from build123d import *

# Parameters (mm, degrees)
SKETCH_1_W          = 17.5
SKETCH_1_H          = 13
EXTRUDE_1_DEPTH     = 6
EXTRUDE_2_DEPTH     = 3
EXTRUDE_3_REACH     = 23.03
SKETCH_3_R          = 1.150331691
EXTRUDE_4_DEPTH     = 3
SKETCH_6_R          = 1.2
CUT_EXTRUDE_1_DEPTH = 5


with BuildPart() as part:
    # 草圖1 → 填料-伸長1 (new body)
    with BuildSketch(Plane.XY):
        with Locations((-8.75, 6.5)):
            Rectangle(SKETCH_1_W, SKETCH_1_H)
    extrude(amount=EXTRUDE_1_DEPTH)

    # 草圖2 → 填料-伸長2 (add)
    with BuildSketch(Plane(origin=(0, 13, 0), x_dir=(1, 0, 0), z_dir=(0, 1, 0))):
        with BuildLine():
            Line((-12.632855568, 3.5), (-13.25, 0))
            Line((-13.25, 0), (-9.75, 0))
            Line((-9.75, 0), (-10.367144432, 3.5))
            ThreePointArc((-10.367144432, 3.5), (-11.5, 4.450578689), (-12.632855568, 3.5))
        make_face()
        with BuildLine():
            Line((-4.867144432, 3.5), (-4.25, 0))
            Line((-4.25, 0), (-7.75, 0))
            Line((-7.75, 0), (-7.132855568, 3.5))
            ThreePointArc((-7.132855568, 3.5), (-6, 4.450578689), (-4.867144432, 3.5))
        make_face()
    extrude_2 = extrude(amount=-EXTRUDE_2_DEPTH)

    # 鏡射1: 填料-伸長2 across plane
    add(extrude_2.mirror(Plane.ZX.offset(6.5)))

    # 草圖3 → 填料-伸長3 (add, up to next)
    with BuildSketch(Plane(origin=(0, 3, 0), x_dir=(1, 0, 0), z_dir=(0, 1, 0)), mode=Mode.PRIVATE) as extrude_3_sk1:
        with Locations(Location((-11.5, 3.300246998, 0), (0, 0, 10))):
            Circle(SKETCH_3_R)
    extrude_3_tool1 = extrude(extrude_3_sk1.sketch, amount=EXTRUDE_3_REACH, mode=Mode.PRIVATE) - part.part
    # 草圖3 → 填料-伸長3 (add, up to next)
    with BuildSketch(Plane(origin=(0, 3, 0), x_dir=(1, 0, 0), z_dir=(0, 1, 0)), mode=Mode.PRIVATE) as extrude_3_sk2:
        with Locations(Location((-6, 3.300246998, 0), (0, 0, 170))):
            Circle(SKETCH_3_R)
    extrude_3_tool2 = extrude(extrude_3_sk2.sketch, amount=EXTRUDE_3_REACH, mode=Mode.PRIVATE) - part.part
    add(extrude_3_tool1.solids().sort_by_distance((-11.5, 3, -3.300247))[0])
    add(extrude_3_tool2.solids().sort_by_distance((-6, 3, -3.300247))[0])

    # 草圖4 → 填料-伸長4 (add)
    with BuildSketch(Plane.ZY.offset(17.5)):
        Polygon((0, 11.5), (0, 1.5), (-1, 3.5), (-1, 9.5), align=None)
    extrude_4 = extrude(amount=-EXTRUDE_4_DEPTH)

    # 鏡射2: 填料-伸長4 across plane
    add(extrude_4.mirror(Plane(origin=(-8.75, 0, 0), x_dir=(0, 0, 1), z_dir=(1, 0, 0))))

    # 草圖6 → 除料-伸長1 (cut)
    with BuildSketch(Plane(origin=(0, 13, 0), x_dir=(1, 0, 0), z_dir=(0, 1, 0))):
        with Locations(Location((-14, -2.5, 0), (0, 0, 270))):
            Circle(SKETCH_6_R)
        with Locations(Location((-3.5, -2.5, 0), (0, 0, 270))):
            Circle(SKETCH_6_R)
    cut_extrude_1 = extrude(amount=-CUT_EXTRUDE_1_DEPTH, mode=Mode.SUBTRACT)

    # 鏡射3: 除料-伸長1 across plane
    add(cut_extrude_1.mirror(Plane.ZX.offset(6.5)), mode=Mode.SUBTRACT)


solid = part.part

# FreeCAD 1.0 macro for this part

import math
import FreeCAD as App
import Part
import Sketcher

V = App.Vector
Q = App.Units.Quantity


def add_polygon(sketch, points):
    """Adds a closed chain of lines whose ends are joined by coincident constraints."""
    first, n = sketch.GeometryCount, len(points)
    for a, b in zip(points, points[1:] + points[:1]):
        sketch.addGeometry(Part.LineSegment(App.Vector(*a, 0), App.Vector(*b, 0)), False)
    for i in range(n):
        sketch.addConstraint(Sketcher.Constraint("Coincident", first + i, 2, first + (i + 1) % n, 1))

doc = App.newDocument("Part")
body = doc.addObject("PartDesign::Body", "Body")

sketch1 = body.newObject("Sketcher::SketchObject", "Sketch")
sketch1.AttachmentSupport = (doc.getObject("XY_Plane"), [""])
sketch1.MapMode = "FlatFace"
add_polygon(sketch1, [(-18, 13), (-18, 0), (0, 0), (0, 13)])
sketch1.addConstraint(Sketcher.Constraint("Vertical", 0))
sketch1.addConstraint(Sketcher.Constraint("Horizontal", 1))
sketch1.addConstraint(Sketcher.Constraint("Vertical", 2))
sketch1.addConstraint(Sketcher.Constraint("Horizontal", 3))
sketch1.addConstraint(Sketcher.Constraint("Coincident", 1, 2, -1, 1))
sketch1.addConstraint(Sketcher.Constraint("DistanceY", 0, 2, 0, 1, Q("13 mm")))
sketch1.addConstraint(Sketcher.Constraint("DistanceX", 1, 1, 1, 2, Q("17.5 mm")))
pad1 = body.newObject("PartDesign::Pad", "Pad")
pad1.Profile = sketch1
pad1.Length = 6

sketch2 = body.newObject("Sketcher::SketchObject", "Sketch001")
sketch2.AttachmentSupport = (doc.getObject("XZ_Plane"), [""])
sketch2.MapMode = "FlatFace"
sketch2.AttachmentOffset = App.Placement(V(0, 0, -13), App.Rotation())
sketch2.addGeometry(Part.LineSegment(V(-12.6, -3.5, 0), V(-13.2, 0, 0)), False)
sketch2.addGeometry(Part.LineSegment(V(-13.2, 0, 0), V(-9.8, 0, 0)), False)
sketch2.addGeometry(Part.LineSegment(V(-9.8, 0, 0), V(-10.4, -3.5, 0)), False)
sketch2.addGeometry(Part.ArcOfCircle(Part.Circle(V(-11.5, -3.3, 0), V(0, 0, 1), 1.2), math.radians(-170), math.radians(-10)), False)
sketch2.addGeometry(Part.LineSegment(V(-4.2, 0, 0), V(-4.9, -3.5, 0)), False)
sketch2.addGeometry(Part.ArcOfCircle(Part.Circle(V(-6, -3.3, 0), V(0, 0, 1), 1.2), math.radians(-170), math.radians(-10)), False)
sketch2.addGeometry(Part.LineSegment(V(-7.1, -3.5, 0), V(-7.8, 0, 0)), False)
sketch2.addGeometry(Part.LineSegment(V(-7.8, 0, 0), V(-4.2, 0, 0)), False)
sketch2.addConstraint(Sketcher.Constraint("Coincident", 0, 2, 1, 1))
sketch2.addConstraint(Sketcher.Constraint("Coincident", 1, 2, 2, 1))
sketch2.addConstraint(Sketcher.Constraint("Tangent", 2, 2, 3, 2))
sketch2.addConstraint(Sketcher.Constraint("Tangent", 3, 1, 0, 1))
sketch2.addConstraint(Sketcher.Constraint("Tangent", 4, 2, 5, 2))
sketch2.addConstraint(Sketcher.Constraint("Tangent", 5, 1, 6, 1))
sketch2.addConstraint(Sketcher.Constraint("Coincident", 6, 2, 7, 1))
sketch2.addConstraint(Sketcher.Constraint("Coincident", 7, 2, 4, 1))
sketch2.addConstraint(Sketcher.Constraint("Horizontal", 1))
sketch2.addConstraint(Sketcher.Constraint("Horizontal", 7))
sketch2.addConstraint(Sketcher.Constraint("Equal", 3, 5))
sketch2.addConstraint(Sketcher.Constraint("PointOnObject", 0, 2, -1))
sketch2.addConstraint(Sketcher.Constraint("PointOnObject", 6, 2, -1))
sketch2.addConstraint(Sketcher.Constraint("Parallel", 2, 4))
sketch2.addConstraint(Sketcher.Constraint("Parallel", 0, 6))
sketch2.addConstraint(Sketcher.Constraint("Horizontal", 3, 3, 5, 3))
sketch2.addConstraint(Sketcher.Constraint("Horizontal", 2, 2, 3, 1))
sketch2.addConstraint(Sketcher.Constraint("Angle", 0, Q("100 deg")))
sketch2.addConstraint(Sketcher.Constraint("DistanceX", 1, 1, 1, 2, Q("3.5 mm")))
sketch2.addConstraint(Sketcher.Constraint("DistanceX", 5, 3, -1, 1, Q("6 mm")))
sketch2.addConstraint(Sketcher.Constraint("DistanceX", 1, 2, 6, 2, Q("2 mm")))
sketch2.addConstraint(Sketcher.Constraint("DistanceY", 2, 2, -1, 1, Q("3.5 mm")))
pad2 = body.newObject("PartDesign::Pad", "Pad001")
pad2.Profile = sketch2
pad2.Length = 3
doc.recompute()

datumplane = body.newObject("PartDesign::Plane", "DatumPlane")
datumplane.AttachmentSupport = (doc.getObject("XZ_Plane"), [""])
datumplane.MapMode = "FlatFace"
datumplane.AttachmentOffset = App.Placement(V(0, 0, -6.5), App.Rotation())
mirrored = body.newObject("PartDesign::Mirrored", "Mirrored")
mirrored.Originals = [pad2]
mirrored.MirrorPlane = (datumplane, [""])
body.Tip = mirrored

sketch3 = body.newObject("Sketcher::SketchObject", "Sketch002")
sketch3.AttachmentSupport = (doc.getObject("XZ_Plane"), [""])
sketch3.MapMode = "FlatFace"
sketch3.AttachmentOffset = App.Placement(V(0, 0, -3), App.Rotation())
sketch3.addGeometry(Part.Circle(V(-11.5, -3.3, 0), V(0, 0, 1), 1.2), False)
sketch3.addConstraint(Sketcher.Constraint("DistanceX", 0, 3, -1, 1, Q("11.5 mm")))
sketch3.addConstraint(Sketcher.Constraint("Diameter", 0, Q("2.300663 mm")))
sketch3.addConstraint(Sketcher.Constraint("DistanceY", 0, 3, -1, 1, Q("3.300247 mm")))
pad3 = body.newObject("PartDesign::Pad", "Pad002")
pad3.Profile = sketch3
pad3.Type = "UpToFirst"
pad3.Reversed = True

sketch4 = body.newObject("Sketcher::SketchObject", "Sketch003")
sketch4.AttachmentSupport = (doc.getObject("XZ_Plane"), [""])
sketch4.MapMode = "FlatFace"
sketch4.AttachmentOffset = App.Placement(V(0, 0, -3), App.Rotation())
sketch4.addGeometry(Part.Circle(V(-6, -3.3, 0), V(0, 0, 1), 1.2), False)
sketch4.addConstraint(Sketcher.Constraint("DistanceX", 0, 3, -1, 1, Q("6 mm")))
sketch4.addConstraint(Sketcher.Constraint("Diameter", 0, Q("2.300663 mm")))
sketch4.addConstraint(Sketcher.Constraint("DistanceY", 0, 3, -1, 1, Q("3.300247 mm")))
pad4 = body.newObject("PartDesign::Pad", "Pad003")
pad4.Profile = sketch4
pad4.Type = "UpToFirst"
pad4.Reversed = True

sketch5 = body.newObject("Sketcher::SketchObject", "Sketch004")
sketch5.AttachmentSupport = (doc.getObject("YZ_Plane"), [""])
sketch5.MapMode = "FlatFace"
sketch5.AttachmentOffset = App.Placement(V(0, 0, -17.5), App.Rotation())
add_polygon(sketch5, [(1.5, 0), (11.5, 0), (9.5, -1), (3.5, -1)])
sketch5.addConstraint(Sketcher.Constraint("Horizontal", 0))
sketch5.addConstraint(Sketcher.Constraint("Horizontal", 2))
sketch5.addConstraint(Sketcher.Constraint("PointOnObject", 0, 2, -1))
sketch5.addConstraint(Sketcher.Constraint("Equal", 1, 3))
sketch5.addConstraint(Sketcher.Constraint("DistanceX", 0, 1, 0, 2, Q("10 mm")))
sketch5.addConstraint(Sketcher.Constraint("DistanceX", 2, 2, 2, 1, Q("6 mm")))
sketch5.addConstraint(Sketcher.Constraint("DistanceY", 1, 2, -1, 1, Q("1 mm")))
sketch5.addConstraint(Sketcher.Constraint("DistanceX", -1, 1, 0, 2, Q("11.5 mm")))
pad5 = body.newObject("PartDesign::Pad", "Pad004")
pad5.Profile = sketch5
pad5.Length = 3
doc.recompute()

datumplane2 = body.newObject("PartDesign::Plane", "DatumPlane001")
datumplane2.AttachmentSupport = (doc.getObject("YZ_Plane"), [""])
datumplane2.MapMode = "FlatFace"
datumplane2.AttachmentOffset = App.Placement(V(0, 0, -8.75), App.Rotation())
mirrored2 = body.newObject("PartDesign::Mirrored", "Mirrored001")
mirrored2.Originals = [pad5]
mirrored2.MirrorPlane = (datumplane2, [""])
body.Tip = mirrored2

sketch6 = body.newObject("Sketcher::SketchObject", "Sketch005")
sketch6.AttachmentSupport = (doc.getObject("XZ_Plane"), [""])
sketch6.MapMode = "FlatFace"
sketch6.AttachmentOffset = App.Placement(V(0, 0, -13), App.Rotation())
sketch6.addGeometry(Part.Circle(V(-14, 2.5, 0), V(0, 0, 1), 1.2), False)
sketch6.addGeometry(Part.Circle(V(-3.5, 2.5, 0), V(0, 0, 1), 1.2), False)
sketch6.addConstraint(Sketcher.Constraint("Equal", 0, 1))
sketch6.addConstraint(Sketcher.Constraint("Horizontal", 0, 3, 1, 3))
sketch6.addConstraint(Sketcher.Constraint("Diameter", 0, Q("2.4 mm")))
sketch6.addConstraint(Sketcher.Constraint("DistanceX", 0, 3, -1, 1, Q("14 mm")))
sketch6.addConstraint(Sketcher.Constraint("DistanceY", -1, 1, 0, 3, Q("2.5 mm")))
sketch6.addConstraint(Sketcher.Constraint("DistanceX", 1, 3, -1, 1, Q("3.5 mm")))
pocket1 = body.newObject("PartDesign::Pocket", "Pocket")
pocket1.Profile = sketch6
pocket1.Length = 5
pocket1.Reversed = True
doc.recompute()

datumplane3 = body.newObject("PartDesign::Plane", "DatumPlane002")
datumplane3.AttachmentSupport = (doc.getObject("XZ_Plane"), [""])
datumplane3.MapMode = "FlatFace"
datumplane3.AttachmentOffset = App.Placement(V(0, 0, -6.5), App.Rotation())
mirrored3 = body.newObject("PartDesign::Mirrored", "Mirrored002")
mirrored3.Originals = [pocket1]
mirrored3.MirrorPlane = (datumplane3, [""])
body.Tip = mirrored3

doc.recompute()
